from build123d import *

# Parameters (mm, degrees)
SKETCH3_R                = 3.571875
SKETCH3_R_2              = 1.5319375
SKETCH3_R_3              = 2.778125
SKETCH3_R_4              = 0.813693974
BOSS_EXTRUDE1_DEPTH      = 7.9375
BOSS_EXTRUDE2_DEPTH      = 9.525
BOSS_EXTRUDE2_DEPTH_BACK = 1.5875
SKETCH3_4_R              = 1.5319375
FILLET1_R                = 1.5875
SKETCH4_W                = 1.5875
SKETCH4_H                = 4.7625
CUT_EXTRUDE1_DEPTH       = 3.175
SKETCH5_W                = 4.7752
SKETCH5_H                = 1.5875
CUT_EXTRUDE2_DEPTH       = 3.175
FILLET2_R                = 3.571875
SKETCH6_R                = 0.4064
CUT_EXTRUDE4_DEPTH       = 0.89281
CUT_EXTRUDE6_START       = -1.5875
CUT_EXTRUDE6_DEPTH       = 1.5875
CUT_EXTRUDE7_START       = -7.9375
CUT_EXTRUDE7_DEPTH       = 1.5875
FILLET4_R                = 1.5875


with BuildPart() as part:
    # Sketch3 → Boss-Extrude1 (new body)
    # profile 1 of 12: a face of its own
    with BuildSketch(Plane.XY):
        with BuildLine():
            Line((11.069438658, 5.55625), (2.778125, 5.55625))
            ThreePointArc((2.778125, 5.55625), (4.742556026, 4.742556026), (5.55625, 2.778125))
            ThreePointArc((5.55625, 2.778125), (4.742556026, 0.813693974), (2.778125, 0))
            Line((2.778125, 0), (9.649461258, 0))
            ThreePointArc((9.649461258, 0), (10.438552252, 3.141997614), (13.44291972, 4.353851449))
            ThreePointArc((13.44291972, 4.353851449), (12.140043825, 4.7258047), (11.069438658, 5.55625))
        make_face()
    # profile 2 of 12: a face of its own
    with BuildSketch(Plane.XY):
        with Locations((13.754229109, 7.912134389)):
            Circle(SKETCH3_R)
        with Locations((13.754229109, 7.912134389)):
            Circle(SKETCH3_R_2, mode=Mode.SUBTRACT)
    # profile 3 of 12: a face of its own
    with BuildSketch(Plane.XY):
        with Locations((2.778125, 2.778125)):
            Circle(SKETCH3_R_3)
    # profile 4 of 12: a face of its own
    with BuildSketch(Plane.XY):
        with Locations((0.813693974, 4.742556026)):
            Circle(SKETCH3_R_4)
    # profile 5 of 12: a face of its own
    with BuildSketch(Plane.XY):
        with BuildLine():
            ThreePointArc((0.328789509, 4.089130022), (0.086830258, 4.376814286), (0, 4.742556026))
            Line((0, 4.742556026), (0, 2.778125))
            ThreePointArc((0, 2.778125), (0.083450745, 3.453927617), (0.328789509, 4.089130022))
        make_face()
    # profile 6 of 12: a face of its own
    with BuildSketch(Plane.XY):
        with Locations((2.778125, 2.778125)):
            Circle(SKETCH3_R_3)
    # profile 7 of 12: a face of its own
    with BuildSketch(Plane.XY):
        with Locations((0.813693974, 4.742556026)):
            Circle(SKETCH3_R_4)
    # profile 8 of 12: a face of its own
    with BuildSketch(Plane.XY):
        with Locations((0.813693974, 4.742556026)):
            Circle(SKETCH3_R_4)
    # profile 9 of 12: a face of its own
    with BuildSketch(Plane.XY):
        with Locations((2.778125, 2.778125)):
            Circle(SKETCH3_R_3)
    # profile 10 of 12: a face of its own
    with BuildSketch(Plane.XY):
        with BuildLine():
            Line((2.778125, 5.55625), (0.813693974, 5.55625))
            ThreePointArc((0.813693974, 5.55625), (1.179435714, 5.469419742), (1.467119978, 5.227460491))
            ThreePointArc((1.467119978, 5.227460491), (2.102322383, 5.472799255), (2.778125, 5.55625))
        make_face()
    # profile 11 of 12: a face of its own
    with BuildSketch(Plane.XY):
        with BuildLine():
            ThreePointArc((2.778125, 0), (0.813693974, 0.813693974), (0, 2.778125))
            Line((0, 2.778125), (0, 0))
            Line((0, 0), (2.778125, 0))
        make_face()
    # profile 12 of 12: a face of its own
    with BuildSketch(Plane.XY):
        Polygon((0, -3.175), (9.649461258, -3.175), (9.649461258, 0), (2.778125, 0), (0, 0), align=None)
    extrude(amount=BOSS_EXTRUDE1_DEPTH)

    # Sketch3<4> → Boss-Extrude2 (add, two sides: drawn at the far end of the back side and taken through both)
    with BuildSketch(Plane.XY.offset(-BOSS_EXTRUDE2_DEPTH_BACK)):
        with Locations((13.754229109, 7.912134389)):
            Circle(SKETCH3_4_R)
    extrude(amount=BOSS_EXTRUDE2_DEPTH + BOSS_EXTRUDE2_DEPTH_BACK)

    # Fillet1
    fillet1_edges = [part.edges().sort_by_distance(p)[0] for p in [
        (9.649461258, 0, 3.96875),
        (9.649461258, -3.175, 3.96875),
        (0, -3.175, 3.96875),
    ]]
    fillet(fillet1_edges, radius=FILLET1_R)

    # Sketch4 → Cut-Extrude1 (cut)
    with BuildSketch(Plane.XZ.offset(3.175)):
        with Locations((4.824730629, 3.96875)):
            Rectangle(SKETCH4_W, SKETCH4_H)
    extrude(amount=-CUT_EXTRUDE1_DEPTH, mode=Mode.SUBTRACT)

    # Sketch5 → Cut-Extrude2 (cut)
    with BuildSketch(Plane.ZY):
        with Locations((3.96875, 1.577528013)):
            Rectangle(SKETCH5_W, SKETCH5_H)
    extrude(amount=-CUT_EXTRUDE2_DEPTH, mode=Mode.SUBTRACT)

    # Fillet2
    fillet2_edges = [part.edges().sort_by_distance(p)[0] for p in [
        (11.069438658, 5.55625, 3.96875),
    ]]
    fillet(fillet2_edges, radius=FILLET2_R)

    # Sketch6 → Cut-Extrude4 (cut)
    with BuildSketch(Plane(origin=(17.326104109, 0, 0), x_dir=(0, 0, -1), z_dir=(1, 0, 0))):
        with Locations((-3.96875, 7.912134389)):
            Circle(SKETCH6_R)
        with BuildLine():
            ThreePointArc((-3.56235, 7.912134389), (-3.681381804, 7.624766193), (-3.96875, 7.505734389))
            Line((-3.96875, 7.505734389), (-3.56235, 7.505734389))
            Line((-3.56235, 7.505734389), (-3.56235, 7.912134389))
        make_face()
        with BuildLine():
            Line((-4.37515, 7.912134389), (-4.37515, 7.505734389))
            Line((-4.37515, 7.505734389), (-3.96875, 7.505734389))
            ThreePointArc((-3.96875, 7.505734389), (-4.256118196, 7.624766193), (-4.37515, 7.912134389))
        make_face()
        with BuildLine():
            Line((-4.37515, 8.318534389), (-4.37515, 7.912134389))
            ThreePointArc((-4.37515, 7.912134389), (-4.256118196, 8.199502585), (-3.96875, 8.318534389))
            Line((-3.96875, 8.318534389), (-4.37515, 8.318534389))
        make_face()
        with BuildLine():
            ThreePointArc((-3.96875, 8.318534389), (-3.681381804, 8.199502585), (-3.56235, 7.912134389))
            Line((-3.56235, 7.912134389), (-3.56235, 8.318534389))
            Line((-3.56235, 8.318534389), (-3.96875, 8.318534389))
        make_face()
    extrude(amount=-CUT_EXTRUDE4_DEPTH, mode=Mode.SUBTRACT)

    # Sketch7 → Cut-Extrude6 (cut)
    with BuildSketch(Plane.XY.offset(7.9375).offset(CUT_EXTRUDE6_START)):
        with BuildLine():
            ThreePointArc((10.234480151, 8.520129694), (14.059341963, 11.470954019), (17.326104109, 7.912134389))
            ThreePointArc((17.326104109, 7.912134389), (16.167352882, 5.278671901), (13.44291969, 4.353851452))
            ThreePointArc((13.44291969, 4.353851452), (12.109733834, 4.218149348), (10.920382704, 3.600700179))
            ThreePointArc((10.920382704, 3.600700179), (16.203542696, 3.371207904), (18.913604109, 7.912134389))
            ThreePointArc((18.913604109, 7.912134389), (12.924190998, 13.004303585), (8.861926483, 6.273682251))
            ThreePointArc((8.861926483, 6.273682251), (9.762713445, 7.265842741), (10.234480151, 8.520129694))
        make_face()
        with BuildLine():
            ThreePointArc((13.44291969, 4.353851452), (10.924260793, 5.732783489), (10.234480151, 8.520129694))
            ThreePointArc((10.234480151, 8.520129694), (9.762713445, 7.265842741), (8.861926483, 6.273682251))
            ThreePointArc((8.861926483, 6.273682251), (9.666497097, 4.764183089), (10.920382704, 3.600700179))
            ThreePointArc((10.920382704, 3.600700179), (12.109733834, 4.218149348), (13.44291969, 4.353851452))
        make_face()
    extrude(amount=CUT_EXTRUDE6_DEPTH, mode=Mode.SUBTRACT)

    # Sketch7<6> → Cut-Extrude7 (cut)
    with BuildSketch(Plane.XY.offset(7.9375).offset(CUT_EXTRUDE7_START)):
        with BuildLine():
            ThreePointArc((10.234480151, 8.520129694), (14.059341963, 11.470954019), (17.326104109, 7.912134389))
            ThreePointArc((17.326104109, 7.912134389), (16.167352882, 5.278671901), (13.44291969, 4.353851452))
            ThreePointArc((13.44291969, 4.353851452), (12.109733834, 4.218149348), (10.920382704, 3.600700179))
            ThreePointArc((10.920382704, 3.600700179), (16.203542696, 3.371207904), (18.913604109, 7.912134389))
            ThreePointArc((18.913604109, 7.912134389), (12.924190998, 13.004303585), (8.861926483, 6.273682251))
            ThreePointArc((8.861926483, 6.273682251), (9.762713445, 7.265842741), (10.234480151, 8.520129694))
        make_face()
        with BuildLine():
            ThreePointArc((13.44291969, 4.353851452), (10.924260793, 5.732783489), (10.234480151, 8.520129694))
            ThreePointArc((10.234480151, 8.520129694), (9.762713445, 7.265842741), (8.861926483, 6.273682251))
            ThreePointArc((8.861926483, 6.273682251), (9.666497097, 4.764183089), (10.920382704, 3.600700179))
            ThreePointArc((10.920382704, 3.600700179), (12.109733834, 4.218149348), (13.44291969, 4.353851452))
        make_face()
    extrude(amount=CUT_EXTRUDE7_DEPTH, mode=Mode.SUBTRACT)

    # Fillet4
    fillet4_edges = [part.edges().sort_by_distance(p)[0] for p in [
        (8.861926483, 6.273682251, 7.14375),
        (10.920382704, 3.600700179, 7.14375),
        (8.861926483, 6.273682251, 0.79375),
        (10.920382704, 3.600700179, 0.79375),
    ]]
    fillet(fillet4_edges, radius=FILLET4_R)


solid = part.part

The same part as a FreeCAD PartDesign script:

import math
import FreeCAD as App
import Part
import Sketcher

V = App.Vector
Q = App.Units.Quantity


def edges_at(feature, points):
    """Names of the edges that pass closest to the given points."""
    edges = feature.Shape.Edges
    near = lambda p: min(range(len(edges)), key=lambda i: edges[i].distToShape(Part.Vertex(*p))[0])
    return sorted({f"Edge{near(p) + 1}" for p in points})

doc = App.newDocument("Part")
body = doc.addObject("PartDesign::Body", "Body")

sketch1 = body.newObject("Sketcher::SketchObject", "Sketch")
sketch1.AttachmentSupport = (doc.getObject("XY_Plane"), [""])
sketch1.MapMode = "FlatFace"
sketch1.addGeometry(Part.LineSegment(V(11.1, 5.6, 0), V(0.8, 5.6, 0)), False)
sketch1.addGeometry(Part.ArcOfCircle(Part.Circle(V(0.8, 4.7, 0), V(0, 0, 1), 0.8), math.radians(90), math.radians(180)), False)
sketch1.addGeometry(Part.LineSegment(V(0, 4.7, 0), V(0, -3.2, 0)), False)
sketch1.addGeometry(Part.LineSegment(V(0, -3.2, 0), V(9.6, -3.2, 0)), False)
sketch1.addGeometry(Part.LineSegment(V(9.6, -3.2, 0), V(9.6, 0, 0)), False)
sketch1.addGeometry(Part.ArcOfCircle(Part.Circle(V(13.1, 0.8, 0), V(0, 0, 1), 3.6), math.radians(85), math.radians(193)), False)
sketch1.addGeometry(Part.ArcOfCircle(Part.Circle(V(13.8, 7.9, 0), V(0, 0, 1), 3.6), math.radians(-95), math.radians(221)), False)
sketch1.addGeometry(Part.Circle(V(13.8, 7.9, 0), V(0, 0, 1), 1.5), False)
sketch1.addConstraint(Sketcher.Constraint("Tangent", 0, 2, 1, 1))
sketch1.addConstraint(Sketcher.Constraint("Tangent", 1, 2, 2, 1))
sketch1.addConstraint(Sketcher.Constraint("Coincident", 2, 2, 3, 1))
sketch1.addConstraint(Sketcher.Constraint("Coincident", 3, 2, 4, 1))
sketch1.addConstraint(Sketcher.Constraint("Coincident", 4, 2, 5, 2))
sketch1.addConstraint(Sketcher.Constraint("Tangent", 5, 1, 6, 1))
sketch1.addConstraint(Sketcher.Constraint("Coincident", 6, 2, 0, 1))
sketch1.addConstraint(Sketcher.Constraint("Horizontal", 0))
sketch1.addConstraint(Sketcher.Constraint("Vertical", 2))
sketch1.addConstraint(Sketcher.Constraint("Horizontal", 3))
sketch1.addConstraint(Sketcher.Constraint("Vertical", 4))
sketch1.addConstraint(Sketcher.Constraint("Coincident", 7, 3, 6, 3))
sketch1.addConstraint(Sketcher.Constraint("Equal", 5, 6))
sketch1.addConstraint(Sketcher.Constraint("PointOnObject", 1, 2, -2))
sketch1.addConstraint(Sketcher.Constraint("PointOnObject", 4, 2, -1))
sketch1.addConstraint(Sketcher.Constraint("Radius", 5, Q("0.140625 in")))
sketch1.addConstraint(Sketcher.Constraint("DistanceY", 4, 1, 4, 2, Q("0.125 in")))
sketch1.addConstraint(Sketcher.Constraint("DistanceX", 3, 1, 3, 2, Q("0.3799 in")))
sketch1.addConstraint(Sketcher.Constraint("DistanceY", -1, 1, 0, 2, Q("0.21875 in")))
sketch1.addConstraint(Sketcher.Constraint("Diameter", 7, Q("3.063875 mm")))
sketch1.addConstraint(Sketcher.Constraint("Radius", 1, Q("0.813694 mm")))
sketch1.addConstraint(Sketcher.Constraint("DistanceY", 5, 1, 6, 2, Q("1.202399 mm")))
sketch1.addConstraint(Sketcher.Constraint("DistanceX", 0, 2, 0, 1, Q("10.255745 mm")))
pad1 = body.newObject("PartDesign::Pad", "Pad")
pad1.Profile = sketch1
pad1.Length = Q("0.3125 in")

sketch2 = body.newObject("Sketcher::SketchObject", "Sketch001")
sketch2.AttachmentSupport = (doc.getObject("XY_Plane"), [""])
sketch2.MapMode = "FlatFace"
sketch2.addGeometry(Part.Circle(V(13.8, 7.9, 0), V(0, 0, 1), 1.5), False)
sketch2.addConstraint(Sketcher.Constraint("Diameter", 0, Q("3.063875 mm")))
sketch2.addConstraint(Sketcher.Constraint("DistanceX", -1, 1, 0, 3, Q("13.754229 mm")))
sketch2.addConstraint(Sketcher.Constraint("DistanceY", -1, 1, 0, 3, Q("7.912134 mm")))
pad2 = body.newObject("PartDesign::Pad", "Pad001")
pad2.Profile = sketch2
pad2.Type = "TwoLengths"
pad2.Length = Q("0.375 in")
pad2.Length2 = Q("0.0625 in")
doc.recompute()

fillet = body.newObject("PartDesign::Fillet", "Fillet")
fillet.Base = (pad2, edges_at(pad2, [(9.649, 0, 3.969), (9.649, -3.175, 3.969), (0, -3.175, 3.969)]))
fillet.Radius = Q("0.0625 in")

sketch3 = body.newObject("Sketcher::SketchObject", "Sketch002")
sketch3.AttachmentSupport = (doc.getObject("XZ_Plane"), [""])
sketch3.MapMode = "FlatFace"
sketch3.AttachmentOffset = App.Placement(V(0, 0, 0.125 * 25.4), App.Rotation())
sketch3.addGeometry(Part.LineSegment(V(4, 6.3, 0), V(4, 1.6, 0)), False)
sketch3.addGeometry(Part.LineSegment(V(4, 1.6, 0), V(5.6, 1.6, 0)), False)
sketch3.addGeometry(Part.LineSegment(V(5.6, 1.6, 0), V(5.6, 6.3, 0)), False)
sketch3.addGeometry(Part.LineSegment(V(5.6, 6.3, 0), V(4, 6.3, 0)), False)
sketch3.addConstraint(Sketcher.Constraint("Coincident", 0, 2, 1, 1))
sketch3.addConstraint(Sketcher.Constraint("Coincident", 1, 2, 2, 1))
sketch3.addConstraint(Sketcher.Constraint("Coincident", 2, 2, 3, 1))
sketch3.addConstraint(Sketcher.Constraint("Coincident", 3, 2, 0, 1))
sketch3.addConstraint(Sketcher.Constraint("Vertical", 0))
sketch3.addConstraint(Sketcher.Constraint("Horizontal", 1))
sketch3.addConstraint(Sketcher.Constraint("Vertical", 2))
sketch3.addConstraint(Sketcher.Constraint("Horizontal", 3))
sketch3.addConstraint(Sketcher.Constraint("DistanceX", 1, 1, 1, 2, Q("0.0625 in")))
sketch3.addConstraint(Sketcher.Constraint("DistanceY", 0, 2, 0, 1, Q("0.1875 in")))
sketch3.addConstraint(Sketcher.Constraint("DistanceY", -1, 1, 2, 2, Q("0.25 in")))
sketch3.addConstraint(Sketcher.Constraint("DistanceX", -1, 1, 0, 2, Q("0.1587 in")))
pocket1 = body.newObject("PartDesign::Pocket", "Pocket")
pocket1.Profile = sketch3
pocket1.Length = Q("0.125 in")

sketch4 = body.newObject("Sketcher::SketchObject", "Sketch003")
sketch4.AttachmentSupport = (doc.getObject("YZ_Plane"), [""])
sketch4.MapMode = "FlatFace"
sketch4.addGeometry(Part.LineSegment(V(2.4, 1.6, 0), V(0.8, 1.6, 0)), False)
sketch4.addGeometry(Part.LineSegment(V(0.8, 1.6, 0), V(0.8, 6.4, 0)), False)
sketch4.addGeometry(Part.LineSegment(V(0.8, 6.4, 0), V(2.4, 6.4, 0)), False)
sketch4.addGeometry(Part.LineSegment(V(2.4, 6.4, 0), V(2.4, 1.6, 0)), False)
sketch4.addConstraint(Sketcher.Constraint("Coincident", 0, 2, 1, 1))
sketch4.addConstraint(Sketcher.Constraint("Coincident", 1, 2, 2, 1))
sketch4.addConstraint(Sketcher.Constraint("Coincident", 2, 2, 3, 1))
sketch4.addConstraint(Sketcher.Constraint("Coincident", 3, 2, 0, 1))
sketch4.addConstraint(Sketcher.Constraint("Horizontal", 0))
sketch4.addConstraint(Sketcher.Constraint("Vertical", 1))
sketch4.addConstraint(Sketcher.Constraint("Horizontal", 2))
sketch4.addConstraint(Sketcher.Constraint("Vertical", 3))
sketch4.addConstraint(Sketcher.Constraint("DistanceX", 0, 2, 0, 1, Q("0.0625 in")))
sketch4.addConstraint(Sketcher.Constraint("DistanceY", 1, 1, 1, 2, Q("0.188 in")))
sketch4.addConstraint(Sketcher.Constraint("DistanceX", -1, 1, 0, 2, Q("0.783778 mm")))
sketch4.addConstraint(Sketcher.Constraint("DistanceY", -1, 1, 0, 2, Q("1.58115 mm")))
pocket2 = body.newObject("PartDesign::Pocket", "Pocket001")
pocket2.Profile = sketch4
pocket2.Length = Q("0.125 in")
pocket2.Reversed = True
doc.recompute()

fillet2 = body.newObject("PartDesign::Fillet", "Fillet001")
fillet2.Base = (pocket2, edges_at(pocket2, [(11.069, 5.556, 3.969)]))
fillet2.Radius = Q("0.140625 in")

sketch5 = body.newObject("Sketcher::SketchObject", "Sketch004")
sketch5.AttachmentSupport = (doc.getObject("YZ_Plane"), [""])
sketch5.MapMode = "FlatFace"
sketch5.AttachmentOffset = App.Placement(V(0, 0, 17.326104), App.Rotation())
sketch5.addGeometry(Part.LineSegment(V(8.3, 4.4, 0), V(7.5, 4.4, 0)), False)
sketch5.addGeometry(Part.LineSegment(V(7.5, 4.4, 0), V(7.5, 3.6, 0)), False)
sketch5.addGeometry(Part.LineSegment(V(7.5, 3.6, 0), V(8.3, 3.6, 0)), False)
sketch5.addGeometry(Part.LineSegment(V(8.3, 3.6, 0), V(8.3, 4.4, 0)), False)
sketch5.addConstraint(Sketcher.Constraint("Coincident", 0, 2, 1, 1))
sketch5.addConstraint(Sketcher.Constraint("Coincident", 1, 2, 2, 1))
sketch5.addConstraint(Sketcher.Constraint("Coincident", 2, 2, 3, 1))
sketch5.addConstraint(Sketcher.Constraint("Coincident", 3, 2, 0, 1))
sketch5.addConstraint(Sketcher.Constraint("Horizontal", 0))
sketch5.addConstraint(Sketcher.Constraint("Vertical", 1))
sketch5.addConstraint(Sketcher.Constraint("Horizontal", 2))
sketch5.addConstraint(Sketcher.Constraint("Vertical", 3))
sketch5.addConstraint(Sketcher.Constraint("Equal", 2, 1))
sketch5.addConstraint(Sketcher.Constraint("DistanceX", 0, 2, 0, 1, Q("0.032 in")))
sketch5.addConstraint(Sketcher.Constraint("DistanceY", -1, 1, 0, 2, Q("4.37515 mm")))
sketch5.addConstraint(Sketcher.Constraint("DistanceX", -1, 1, 0, 2, Q("7.505734 mm")))
pocket3 = body.newObject("PartDesign::Pocket", "Pocket002")
pocket3.Profile = sketch5
pocket3.Length = 0.89281

sketch6 = body.newObject("Sketcher::SketchObject", "Sketch005")
sketch6.AttachmentSupport = (doc.getObject("XY_Plane"), [""])
sketch6.MapMode = "FlatFace"
sketch6.AttachmentOffset = App.Placement(V(0, 0, 0.25 * 25.4), App.Rotation())
sketch6.addGeometry(Part.ArcOfCircle(Part.Circle(V(13.8, 7.9, 0), V(0, 0, 1), 5.2), math.radians(-123), math.radians(0)), False)
sketch6.addGeometry(Part.ArcOfCircle(Part.Circle(V(13.8, 7.9, 0), V(0, 0, 1), 5.2), math.radians(0), math.radians(199)), False)
sketch6.addGeometry(Part.ArcOfCircle(Part.Circle(V(13.8, 7.9, 0), V(0, 0, 1), 5.2), math.radians(-161), math.radians(-123)), False)
sketch6.addGeometry(Part.ArcOfCircle(Part.Circle(V(13.8, 7.9, 0), V(0, 0, 1), 3.6), math.radians(0), math.radians(170)), False)
sketch6.addGeometry(Part.ArcOfCircle(Part.Circle(V(13.8, 7.9, 0), V(0, 0, 1), 3.6), math.radians(-95), math.radians(0)), False)
sketch6.addGeometry(Part.ArcOfCircle(Part.Circle(V(13.8, 7.9, 0), V(0, 0, 1), 3.6), math.radians(170), math.radians(265)), False)
sketch6.addConstraint(Sketcher.Constraint("Tangent", 0, 2, 1, 1))
sketch6.addConstraint(Sketcher.Constraint("Tangent", 1, 2, 2, 1))
sketch6.addConstraint(Sketcher.Constraint("Tangent", 2, 2, 0, 1))
sketch6.addConstraint(Sketcher.Constraint("Tangent", 3, 1, 4, 2))
sketch6.addConstraint(Sketcher.Constraint("Tangent", 4, 1, 5, 2))
sketch6.addConstraint(Sketcher.Constraint("Tangent", 5, 1, 3, 2))
sketch6.addConstraint(Sketcher.Constraint("Coincident", 3, 3, 0, 3))
sketch6.addConstraint(Sketcher.Constraint("Horizontal", 5, 3, 0, 2))
sketch6.addConstraint(Sketcher.Constraint("Horizontal", 0, 2, 3, 1))
sketch6.addConstraint(Sketcher.Constraint("Radius", 0, Q("0.203125 in")))
sketch6.addConstraint(Sketcher.Constraint("Radius", 3, Q("0.140625 in")))
sketch6.addConstraint(Sketcher.Constraint("DistanceY", -1, 1, 2, 2, Q("3.6007 mm")))
sketch6.addConstraint(Sketcher.Constraint("DistanceX", -1, 1, 0, 3, Q("13.754229 mm")))
sketch6.addConstraint(Sketcher.Constraint("DistanceX", -1, 1, 4, 1, Q("13.44292 mm")))
sketch6.addConstraint(Sketcher.Constraint("DistanceY", -1, 1, 4, 1, Q("4.353851 mm")))
sketch6.addConstraint(Sketcher.Constraint("DistanceX", -1, 1, 5, 1, Q("10.23448 mm")))
sketch6.addConstraint(Sketcher.Constraint("DistanceX", -1, 1, 1, 2, Q("8.861926 mm")))
pocket4 = body.newObject("PartDesign::Pocket", "Pocket003")
pocket4.Profile = sketch6
pocket4.Length = Q("0.0625 in")
pocket4.Reversed = True

sketch7 = body.newObject("Sketcher::SketchObject", "Sketch006")
sketch7.AttachmentSupport = (doc.getObject("XY_Plane"), [""])
sketch7.MapMode = "FlatFace"
sketch7.addGeometry(Part.ArcOfCircle(Part.Circle(V(13.8, 7.9, 0), V(0, 0, 1), 5.2), math.radians(-123), math.radians(0)), False)
sketch7.addGeometry(Part.ArcOfCircle(Part.Circle(V(13.8, 7.9, 0), V(0, 0, 1), 5.2), math.radians(0), math.radians(199)), False)
sketch7.addGeometry(Part.ArcOfCircle(Part.Circle(V(13.8, 7.9, 0), V(0, 0, 1), 5.2), math.radians(-161), math.radians(-123)), False)
sketch7.addGeometry(Part.ArcOfCircle(Part.Circle(V(13.8, 7.9, 0), V(0, 0, 1), 3.6), math.radians(0), math.radians(170)), False)
sketch7.addGeometry(Part.ArcOfCircle(Part.Circle(V(13.8, 7.9, 0), V(0, 0, 1), 3.6), math.radians(-95), math.radians(0)), False)
sketch7.addGeometry(Part.ArcOfCircle(Part.Circle(V(13.8, 7.9, 0), V(0, 0, 1), 3.6), math.radians(170), math.radians(265)), False)
sketch7.addConstraint(Sketcher.Constraint("Tangent", 0, 2, 1, 1))
sketch7.addConstraint(Sketcher.Constraint("Tangent", 1, 2, 2, 1))
sketch7.addConstraint(Sketcher.Constraint("Tangent", 2, 2, 0, 1))
sketch7.addConstraint(Sketcher.Constraint("Tangent", 3, 1, 4, 2))
sketch7.addConstraint(Sketcher.Constraint("Tangent", 4, 1, 5, 2))
sketch7.addConstraint(Sketcher.Constraint("Tangent", 5, 1, 3, 2))
sketch7.addConstraint(Sketcher.Constraint("Coincident", 3, 3, 0, 3))
sketch7.addConstraint(Sketcher.Constraint("Horizontal", 5, 3, 0, 2))
sketch7.addConstraint(Sketcher.Constraint("Horizontal", 0, 2, 3, 1))
sketch7.addConstraint(Sketcher.Constraint("Radius", 0, Q("0.203125 in")))
sketch7.addConstraint(Sketcher.Constraint("Radius", 3, Q("0.140625 in")))
sketch7.addConstraint(Sketcher.Constraint("DistanceY", -1, 1, 2, 2, Q("3.6007 mm")))
sketch7.addConstraint(Sketcher.Constraint("DistanceX", -1, 1, 0, 3, Q("13.754229 mm")))
sketch7.addConstraint(Sketcher.Constraint("DistanceX", -1, 1, 4, 1, Q("13.44292 mm")))
sketch7.addConstraint(Sketcher.Constraint("DistanceY", -1, 1, 4, 1, Q("4.353851 mm")))
sketch7.addConstraint(Sketcher.Constraint("DistanceX", -1, 1, 5, 1, Q("10.23448 mm")))
sketch7.addConstraint(Sketcher.Constraint("DistanceX", -1, 1, 1, 2, Q("8.861926 mm")))
pocket5 = body.newObject("PartDesign::Pocket", "Pocket004")
pocket5.Profile = sketch7
pocket5.Length = Q("0.0625 in")
pocket5.Reversed = True
doc.recompute()

fillet3 = body.newObject("PartDesign::Fillet", "Fillet002")
fillet3.Base = (pocket5, edges_at(pocket5, [
    (8.862, 6.274, 7.144),
    (10.92, 3.601, 7.144),
    (8.862, 6.274, 0.794),
    (10.92, 3.601, 0.794),
]))
fillet3.Radius = Q("0.0625 in")

doc.recompute()
